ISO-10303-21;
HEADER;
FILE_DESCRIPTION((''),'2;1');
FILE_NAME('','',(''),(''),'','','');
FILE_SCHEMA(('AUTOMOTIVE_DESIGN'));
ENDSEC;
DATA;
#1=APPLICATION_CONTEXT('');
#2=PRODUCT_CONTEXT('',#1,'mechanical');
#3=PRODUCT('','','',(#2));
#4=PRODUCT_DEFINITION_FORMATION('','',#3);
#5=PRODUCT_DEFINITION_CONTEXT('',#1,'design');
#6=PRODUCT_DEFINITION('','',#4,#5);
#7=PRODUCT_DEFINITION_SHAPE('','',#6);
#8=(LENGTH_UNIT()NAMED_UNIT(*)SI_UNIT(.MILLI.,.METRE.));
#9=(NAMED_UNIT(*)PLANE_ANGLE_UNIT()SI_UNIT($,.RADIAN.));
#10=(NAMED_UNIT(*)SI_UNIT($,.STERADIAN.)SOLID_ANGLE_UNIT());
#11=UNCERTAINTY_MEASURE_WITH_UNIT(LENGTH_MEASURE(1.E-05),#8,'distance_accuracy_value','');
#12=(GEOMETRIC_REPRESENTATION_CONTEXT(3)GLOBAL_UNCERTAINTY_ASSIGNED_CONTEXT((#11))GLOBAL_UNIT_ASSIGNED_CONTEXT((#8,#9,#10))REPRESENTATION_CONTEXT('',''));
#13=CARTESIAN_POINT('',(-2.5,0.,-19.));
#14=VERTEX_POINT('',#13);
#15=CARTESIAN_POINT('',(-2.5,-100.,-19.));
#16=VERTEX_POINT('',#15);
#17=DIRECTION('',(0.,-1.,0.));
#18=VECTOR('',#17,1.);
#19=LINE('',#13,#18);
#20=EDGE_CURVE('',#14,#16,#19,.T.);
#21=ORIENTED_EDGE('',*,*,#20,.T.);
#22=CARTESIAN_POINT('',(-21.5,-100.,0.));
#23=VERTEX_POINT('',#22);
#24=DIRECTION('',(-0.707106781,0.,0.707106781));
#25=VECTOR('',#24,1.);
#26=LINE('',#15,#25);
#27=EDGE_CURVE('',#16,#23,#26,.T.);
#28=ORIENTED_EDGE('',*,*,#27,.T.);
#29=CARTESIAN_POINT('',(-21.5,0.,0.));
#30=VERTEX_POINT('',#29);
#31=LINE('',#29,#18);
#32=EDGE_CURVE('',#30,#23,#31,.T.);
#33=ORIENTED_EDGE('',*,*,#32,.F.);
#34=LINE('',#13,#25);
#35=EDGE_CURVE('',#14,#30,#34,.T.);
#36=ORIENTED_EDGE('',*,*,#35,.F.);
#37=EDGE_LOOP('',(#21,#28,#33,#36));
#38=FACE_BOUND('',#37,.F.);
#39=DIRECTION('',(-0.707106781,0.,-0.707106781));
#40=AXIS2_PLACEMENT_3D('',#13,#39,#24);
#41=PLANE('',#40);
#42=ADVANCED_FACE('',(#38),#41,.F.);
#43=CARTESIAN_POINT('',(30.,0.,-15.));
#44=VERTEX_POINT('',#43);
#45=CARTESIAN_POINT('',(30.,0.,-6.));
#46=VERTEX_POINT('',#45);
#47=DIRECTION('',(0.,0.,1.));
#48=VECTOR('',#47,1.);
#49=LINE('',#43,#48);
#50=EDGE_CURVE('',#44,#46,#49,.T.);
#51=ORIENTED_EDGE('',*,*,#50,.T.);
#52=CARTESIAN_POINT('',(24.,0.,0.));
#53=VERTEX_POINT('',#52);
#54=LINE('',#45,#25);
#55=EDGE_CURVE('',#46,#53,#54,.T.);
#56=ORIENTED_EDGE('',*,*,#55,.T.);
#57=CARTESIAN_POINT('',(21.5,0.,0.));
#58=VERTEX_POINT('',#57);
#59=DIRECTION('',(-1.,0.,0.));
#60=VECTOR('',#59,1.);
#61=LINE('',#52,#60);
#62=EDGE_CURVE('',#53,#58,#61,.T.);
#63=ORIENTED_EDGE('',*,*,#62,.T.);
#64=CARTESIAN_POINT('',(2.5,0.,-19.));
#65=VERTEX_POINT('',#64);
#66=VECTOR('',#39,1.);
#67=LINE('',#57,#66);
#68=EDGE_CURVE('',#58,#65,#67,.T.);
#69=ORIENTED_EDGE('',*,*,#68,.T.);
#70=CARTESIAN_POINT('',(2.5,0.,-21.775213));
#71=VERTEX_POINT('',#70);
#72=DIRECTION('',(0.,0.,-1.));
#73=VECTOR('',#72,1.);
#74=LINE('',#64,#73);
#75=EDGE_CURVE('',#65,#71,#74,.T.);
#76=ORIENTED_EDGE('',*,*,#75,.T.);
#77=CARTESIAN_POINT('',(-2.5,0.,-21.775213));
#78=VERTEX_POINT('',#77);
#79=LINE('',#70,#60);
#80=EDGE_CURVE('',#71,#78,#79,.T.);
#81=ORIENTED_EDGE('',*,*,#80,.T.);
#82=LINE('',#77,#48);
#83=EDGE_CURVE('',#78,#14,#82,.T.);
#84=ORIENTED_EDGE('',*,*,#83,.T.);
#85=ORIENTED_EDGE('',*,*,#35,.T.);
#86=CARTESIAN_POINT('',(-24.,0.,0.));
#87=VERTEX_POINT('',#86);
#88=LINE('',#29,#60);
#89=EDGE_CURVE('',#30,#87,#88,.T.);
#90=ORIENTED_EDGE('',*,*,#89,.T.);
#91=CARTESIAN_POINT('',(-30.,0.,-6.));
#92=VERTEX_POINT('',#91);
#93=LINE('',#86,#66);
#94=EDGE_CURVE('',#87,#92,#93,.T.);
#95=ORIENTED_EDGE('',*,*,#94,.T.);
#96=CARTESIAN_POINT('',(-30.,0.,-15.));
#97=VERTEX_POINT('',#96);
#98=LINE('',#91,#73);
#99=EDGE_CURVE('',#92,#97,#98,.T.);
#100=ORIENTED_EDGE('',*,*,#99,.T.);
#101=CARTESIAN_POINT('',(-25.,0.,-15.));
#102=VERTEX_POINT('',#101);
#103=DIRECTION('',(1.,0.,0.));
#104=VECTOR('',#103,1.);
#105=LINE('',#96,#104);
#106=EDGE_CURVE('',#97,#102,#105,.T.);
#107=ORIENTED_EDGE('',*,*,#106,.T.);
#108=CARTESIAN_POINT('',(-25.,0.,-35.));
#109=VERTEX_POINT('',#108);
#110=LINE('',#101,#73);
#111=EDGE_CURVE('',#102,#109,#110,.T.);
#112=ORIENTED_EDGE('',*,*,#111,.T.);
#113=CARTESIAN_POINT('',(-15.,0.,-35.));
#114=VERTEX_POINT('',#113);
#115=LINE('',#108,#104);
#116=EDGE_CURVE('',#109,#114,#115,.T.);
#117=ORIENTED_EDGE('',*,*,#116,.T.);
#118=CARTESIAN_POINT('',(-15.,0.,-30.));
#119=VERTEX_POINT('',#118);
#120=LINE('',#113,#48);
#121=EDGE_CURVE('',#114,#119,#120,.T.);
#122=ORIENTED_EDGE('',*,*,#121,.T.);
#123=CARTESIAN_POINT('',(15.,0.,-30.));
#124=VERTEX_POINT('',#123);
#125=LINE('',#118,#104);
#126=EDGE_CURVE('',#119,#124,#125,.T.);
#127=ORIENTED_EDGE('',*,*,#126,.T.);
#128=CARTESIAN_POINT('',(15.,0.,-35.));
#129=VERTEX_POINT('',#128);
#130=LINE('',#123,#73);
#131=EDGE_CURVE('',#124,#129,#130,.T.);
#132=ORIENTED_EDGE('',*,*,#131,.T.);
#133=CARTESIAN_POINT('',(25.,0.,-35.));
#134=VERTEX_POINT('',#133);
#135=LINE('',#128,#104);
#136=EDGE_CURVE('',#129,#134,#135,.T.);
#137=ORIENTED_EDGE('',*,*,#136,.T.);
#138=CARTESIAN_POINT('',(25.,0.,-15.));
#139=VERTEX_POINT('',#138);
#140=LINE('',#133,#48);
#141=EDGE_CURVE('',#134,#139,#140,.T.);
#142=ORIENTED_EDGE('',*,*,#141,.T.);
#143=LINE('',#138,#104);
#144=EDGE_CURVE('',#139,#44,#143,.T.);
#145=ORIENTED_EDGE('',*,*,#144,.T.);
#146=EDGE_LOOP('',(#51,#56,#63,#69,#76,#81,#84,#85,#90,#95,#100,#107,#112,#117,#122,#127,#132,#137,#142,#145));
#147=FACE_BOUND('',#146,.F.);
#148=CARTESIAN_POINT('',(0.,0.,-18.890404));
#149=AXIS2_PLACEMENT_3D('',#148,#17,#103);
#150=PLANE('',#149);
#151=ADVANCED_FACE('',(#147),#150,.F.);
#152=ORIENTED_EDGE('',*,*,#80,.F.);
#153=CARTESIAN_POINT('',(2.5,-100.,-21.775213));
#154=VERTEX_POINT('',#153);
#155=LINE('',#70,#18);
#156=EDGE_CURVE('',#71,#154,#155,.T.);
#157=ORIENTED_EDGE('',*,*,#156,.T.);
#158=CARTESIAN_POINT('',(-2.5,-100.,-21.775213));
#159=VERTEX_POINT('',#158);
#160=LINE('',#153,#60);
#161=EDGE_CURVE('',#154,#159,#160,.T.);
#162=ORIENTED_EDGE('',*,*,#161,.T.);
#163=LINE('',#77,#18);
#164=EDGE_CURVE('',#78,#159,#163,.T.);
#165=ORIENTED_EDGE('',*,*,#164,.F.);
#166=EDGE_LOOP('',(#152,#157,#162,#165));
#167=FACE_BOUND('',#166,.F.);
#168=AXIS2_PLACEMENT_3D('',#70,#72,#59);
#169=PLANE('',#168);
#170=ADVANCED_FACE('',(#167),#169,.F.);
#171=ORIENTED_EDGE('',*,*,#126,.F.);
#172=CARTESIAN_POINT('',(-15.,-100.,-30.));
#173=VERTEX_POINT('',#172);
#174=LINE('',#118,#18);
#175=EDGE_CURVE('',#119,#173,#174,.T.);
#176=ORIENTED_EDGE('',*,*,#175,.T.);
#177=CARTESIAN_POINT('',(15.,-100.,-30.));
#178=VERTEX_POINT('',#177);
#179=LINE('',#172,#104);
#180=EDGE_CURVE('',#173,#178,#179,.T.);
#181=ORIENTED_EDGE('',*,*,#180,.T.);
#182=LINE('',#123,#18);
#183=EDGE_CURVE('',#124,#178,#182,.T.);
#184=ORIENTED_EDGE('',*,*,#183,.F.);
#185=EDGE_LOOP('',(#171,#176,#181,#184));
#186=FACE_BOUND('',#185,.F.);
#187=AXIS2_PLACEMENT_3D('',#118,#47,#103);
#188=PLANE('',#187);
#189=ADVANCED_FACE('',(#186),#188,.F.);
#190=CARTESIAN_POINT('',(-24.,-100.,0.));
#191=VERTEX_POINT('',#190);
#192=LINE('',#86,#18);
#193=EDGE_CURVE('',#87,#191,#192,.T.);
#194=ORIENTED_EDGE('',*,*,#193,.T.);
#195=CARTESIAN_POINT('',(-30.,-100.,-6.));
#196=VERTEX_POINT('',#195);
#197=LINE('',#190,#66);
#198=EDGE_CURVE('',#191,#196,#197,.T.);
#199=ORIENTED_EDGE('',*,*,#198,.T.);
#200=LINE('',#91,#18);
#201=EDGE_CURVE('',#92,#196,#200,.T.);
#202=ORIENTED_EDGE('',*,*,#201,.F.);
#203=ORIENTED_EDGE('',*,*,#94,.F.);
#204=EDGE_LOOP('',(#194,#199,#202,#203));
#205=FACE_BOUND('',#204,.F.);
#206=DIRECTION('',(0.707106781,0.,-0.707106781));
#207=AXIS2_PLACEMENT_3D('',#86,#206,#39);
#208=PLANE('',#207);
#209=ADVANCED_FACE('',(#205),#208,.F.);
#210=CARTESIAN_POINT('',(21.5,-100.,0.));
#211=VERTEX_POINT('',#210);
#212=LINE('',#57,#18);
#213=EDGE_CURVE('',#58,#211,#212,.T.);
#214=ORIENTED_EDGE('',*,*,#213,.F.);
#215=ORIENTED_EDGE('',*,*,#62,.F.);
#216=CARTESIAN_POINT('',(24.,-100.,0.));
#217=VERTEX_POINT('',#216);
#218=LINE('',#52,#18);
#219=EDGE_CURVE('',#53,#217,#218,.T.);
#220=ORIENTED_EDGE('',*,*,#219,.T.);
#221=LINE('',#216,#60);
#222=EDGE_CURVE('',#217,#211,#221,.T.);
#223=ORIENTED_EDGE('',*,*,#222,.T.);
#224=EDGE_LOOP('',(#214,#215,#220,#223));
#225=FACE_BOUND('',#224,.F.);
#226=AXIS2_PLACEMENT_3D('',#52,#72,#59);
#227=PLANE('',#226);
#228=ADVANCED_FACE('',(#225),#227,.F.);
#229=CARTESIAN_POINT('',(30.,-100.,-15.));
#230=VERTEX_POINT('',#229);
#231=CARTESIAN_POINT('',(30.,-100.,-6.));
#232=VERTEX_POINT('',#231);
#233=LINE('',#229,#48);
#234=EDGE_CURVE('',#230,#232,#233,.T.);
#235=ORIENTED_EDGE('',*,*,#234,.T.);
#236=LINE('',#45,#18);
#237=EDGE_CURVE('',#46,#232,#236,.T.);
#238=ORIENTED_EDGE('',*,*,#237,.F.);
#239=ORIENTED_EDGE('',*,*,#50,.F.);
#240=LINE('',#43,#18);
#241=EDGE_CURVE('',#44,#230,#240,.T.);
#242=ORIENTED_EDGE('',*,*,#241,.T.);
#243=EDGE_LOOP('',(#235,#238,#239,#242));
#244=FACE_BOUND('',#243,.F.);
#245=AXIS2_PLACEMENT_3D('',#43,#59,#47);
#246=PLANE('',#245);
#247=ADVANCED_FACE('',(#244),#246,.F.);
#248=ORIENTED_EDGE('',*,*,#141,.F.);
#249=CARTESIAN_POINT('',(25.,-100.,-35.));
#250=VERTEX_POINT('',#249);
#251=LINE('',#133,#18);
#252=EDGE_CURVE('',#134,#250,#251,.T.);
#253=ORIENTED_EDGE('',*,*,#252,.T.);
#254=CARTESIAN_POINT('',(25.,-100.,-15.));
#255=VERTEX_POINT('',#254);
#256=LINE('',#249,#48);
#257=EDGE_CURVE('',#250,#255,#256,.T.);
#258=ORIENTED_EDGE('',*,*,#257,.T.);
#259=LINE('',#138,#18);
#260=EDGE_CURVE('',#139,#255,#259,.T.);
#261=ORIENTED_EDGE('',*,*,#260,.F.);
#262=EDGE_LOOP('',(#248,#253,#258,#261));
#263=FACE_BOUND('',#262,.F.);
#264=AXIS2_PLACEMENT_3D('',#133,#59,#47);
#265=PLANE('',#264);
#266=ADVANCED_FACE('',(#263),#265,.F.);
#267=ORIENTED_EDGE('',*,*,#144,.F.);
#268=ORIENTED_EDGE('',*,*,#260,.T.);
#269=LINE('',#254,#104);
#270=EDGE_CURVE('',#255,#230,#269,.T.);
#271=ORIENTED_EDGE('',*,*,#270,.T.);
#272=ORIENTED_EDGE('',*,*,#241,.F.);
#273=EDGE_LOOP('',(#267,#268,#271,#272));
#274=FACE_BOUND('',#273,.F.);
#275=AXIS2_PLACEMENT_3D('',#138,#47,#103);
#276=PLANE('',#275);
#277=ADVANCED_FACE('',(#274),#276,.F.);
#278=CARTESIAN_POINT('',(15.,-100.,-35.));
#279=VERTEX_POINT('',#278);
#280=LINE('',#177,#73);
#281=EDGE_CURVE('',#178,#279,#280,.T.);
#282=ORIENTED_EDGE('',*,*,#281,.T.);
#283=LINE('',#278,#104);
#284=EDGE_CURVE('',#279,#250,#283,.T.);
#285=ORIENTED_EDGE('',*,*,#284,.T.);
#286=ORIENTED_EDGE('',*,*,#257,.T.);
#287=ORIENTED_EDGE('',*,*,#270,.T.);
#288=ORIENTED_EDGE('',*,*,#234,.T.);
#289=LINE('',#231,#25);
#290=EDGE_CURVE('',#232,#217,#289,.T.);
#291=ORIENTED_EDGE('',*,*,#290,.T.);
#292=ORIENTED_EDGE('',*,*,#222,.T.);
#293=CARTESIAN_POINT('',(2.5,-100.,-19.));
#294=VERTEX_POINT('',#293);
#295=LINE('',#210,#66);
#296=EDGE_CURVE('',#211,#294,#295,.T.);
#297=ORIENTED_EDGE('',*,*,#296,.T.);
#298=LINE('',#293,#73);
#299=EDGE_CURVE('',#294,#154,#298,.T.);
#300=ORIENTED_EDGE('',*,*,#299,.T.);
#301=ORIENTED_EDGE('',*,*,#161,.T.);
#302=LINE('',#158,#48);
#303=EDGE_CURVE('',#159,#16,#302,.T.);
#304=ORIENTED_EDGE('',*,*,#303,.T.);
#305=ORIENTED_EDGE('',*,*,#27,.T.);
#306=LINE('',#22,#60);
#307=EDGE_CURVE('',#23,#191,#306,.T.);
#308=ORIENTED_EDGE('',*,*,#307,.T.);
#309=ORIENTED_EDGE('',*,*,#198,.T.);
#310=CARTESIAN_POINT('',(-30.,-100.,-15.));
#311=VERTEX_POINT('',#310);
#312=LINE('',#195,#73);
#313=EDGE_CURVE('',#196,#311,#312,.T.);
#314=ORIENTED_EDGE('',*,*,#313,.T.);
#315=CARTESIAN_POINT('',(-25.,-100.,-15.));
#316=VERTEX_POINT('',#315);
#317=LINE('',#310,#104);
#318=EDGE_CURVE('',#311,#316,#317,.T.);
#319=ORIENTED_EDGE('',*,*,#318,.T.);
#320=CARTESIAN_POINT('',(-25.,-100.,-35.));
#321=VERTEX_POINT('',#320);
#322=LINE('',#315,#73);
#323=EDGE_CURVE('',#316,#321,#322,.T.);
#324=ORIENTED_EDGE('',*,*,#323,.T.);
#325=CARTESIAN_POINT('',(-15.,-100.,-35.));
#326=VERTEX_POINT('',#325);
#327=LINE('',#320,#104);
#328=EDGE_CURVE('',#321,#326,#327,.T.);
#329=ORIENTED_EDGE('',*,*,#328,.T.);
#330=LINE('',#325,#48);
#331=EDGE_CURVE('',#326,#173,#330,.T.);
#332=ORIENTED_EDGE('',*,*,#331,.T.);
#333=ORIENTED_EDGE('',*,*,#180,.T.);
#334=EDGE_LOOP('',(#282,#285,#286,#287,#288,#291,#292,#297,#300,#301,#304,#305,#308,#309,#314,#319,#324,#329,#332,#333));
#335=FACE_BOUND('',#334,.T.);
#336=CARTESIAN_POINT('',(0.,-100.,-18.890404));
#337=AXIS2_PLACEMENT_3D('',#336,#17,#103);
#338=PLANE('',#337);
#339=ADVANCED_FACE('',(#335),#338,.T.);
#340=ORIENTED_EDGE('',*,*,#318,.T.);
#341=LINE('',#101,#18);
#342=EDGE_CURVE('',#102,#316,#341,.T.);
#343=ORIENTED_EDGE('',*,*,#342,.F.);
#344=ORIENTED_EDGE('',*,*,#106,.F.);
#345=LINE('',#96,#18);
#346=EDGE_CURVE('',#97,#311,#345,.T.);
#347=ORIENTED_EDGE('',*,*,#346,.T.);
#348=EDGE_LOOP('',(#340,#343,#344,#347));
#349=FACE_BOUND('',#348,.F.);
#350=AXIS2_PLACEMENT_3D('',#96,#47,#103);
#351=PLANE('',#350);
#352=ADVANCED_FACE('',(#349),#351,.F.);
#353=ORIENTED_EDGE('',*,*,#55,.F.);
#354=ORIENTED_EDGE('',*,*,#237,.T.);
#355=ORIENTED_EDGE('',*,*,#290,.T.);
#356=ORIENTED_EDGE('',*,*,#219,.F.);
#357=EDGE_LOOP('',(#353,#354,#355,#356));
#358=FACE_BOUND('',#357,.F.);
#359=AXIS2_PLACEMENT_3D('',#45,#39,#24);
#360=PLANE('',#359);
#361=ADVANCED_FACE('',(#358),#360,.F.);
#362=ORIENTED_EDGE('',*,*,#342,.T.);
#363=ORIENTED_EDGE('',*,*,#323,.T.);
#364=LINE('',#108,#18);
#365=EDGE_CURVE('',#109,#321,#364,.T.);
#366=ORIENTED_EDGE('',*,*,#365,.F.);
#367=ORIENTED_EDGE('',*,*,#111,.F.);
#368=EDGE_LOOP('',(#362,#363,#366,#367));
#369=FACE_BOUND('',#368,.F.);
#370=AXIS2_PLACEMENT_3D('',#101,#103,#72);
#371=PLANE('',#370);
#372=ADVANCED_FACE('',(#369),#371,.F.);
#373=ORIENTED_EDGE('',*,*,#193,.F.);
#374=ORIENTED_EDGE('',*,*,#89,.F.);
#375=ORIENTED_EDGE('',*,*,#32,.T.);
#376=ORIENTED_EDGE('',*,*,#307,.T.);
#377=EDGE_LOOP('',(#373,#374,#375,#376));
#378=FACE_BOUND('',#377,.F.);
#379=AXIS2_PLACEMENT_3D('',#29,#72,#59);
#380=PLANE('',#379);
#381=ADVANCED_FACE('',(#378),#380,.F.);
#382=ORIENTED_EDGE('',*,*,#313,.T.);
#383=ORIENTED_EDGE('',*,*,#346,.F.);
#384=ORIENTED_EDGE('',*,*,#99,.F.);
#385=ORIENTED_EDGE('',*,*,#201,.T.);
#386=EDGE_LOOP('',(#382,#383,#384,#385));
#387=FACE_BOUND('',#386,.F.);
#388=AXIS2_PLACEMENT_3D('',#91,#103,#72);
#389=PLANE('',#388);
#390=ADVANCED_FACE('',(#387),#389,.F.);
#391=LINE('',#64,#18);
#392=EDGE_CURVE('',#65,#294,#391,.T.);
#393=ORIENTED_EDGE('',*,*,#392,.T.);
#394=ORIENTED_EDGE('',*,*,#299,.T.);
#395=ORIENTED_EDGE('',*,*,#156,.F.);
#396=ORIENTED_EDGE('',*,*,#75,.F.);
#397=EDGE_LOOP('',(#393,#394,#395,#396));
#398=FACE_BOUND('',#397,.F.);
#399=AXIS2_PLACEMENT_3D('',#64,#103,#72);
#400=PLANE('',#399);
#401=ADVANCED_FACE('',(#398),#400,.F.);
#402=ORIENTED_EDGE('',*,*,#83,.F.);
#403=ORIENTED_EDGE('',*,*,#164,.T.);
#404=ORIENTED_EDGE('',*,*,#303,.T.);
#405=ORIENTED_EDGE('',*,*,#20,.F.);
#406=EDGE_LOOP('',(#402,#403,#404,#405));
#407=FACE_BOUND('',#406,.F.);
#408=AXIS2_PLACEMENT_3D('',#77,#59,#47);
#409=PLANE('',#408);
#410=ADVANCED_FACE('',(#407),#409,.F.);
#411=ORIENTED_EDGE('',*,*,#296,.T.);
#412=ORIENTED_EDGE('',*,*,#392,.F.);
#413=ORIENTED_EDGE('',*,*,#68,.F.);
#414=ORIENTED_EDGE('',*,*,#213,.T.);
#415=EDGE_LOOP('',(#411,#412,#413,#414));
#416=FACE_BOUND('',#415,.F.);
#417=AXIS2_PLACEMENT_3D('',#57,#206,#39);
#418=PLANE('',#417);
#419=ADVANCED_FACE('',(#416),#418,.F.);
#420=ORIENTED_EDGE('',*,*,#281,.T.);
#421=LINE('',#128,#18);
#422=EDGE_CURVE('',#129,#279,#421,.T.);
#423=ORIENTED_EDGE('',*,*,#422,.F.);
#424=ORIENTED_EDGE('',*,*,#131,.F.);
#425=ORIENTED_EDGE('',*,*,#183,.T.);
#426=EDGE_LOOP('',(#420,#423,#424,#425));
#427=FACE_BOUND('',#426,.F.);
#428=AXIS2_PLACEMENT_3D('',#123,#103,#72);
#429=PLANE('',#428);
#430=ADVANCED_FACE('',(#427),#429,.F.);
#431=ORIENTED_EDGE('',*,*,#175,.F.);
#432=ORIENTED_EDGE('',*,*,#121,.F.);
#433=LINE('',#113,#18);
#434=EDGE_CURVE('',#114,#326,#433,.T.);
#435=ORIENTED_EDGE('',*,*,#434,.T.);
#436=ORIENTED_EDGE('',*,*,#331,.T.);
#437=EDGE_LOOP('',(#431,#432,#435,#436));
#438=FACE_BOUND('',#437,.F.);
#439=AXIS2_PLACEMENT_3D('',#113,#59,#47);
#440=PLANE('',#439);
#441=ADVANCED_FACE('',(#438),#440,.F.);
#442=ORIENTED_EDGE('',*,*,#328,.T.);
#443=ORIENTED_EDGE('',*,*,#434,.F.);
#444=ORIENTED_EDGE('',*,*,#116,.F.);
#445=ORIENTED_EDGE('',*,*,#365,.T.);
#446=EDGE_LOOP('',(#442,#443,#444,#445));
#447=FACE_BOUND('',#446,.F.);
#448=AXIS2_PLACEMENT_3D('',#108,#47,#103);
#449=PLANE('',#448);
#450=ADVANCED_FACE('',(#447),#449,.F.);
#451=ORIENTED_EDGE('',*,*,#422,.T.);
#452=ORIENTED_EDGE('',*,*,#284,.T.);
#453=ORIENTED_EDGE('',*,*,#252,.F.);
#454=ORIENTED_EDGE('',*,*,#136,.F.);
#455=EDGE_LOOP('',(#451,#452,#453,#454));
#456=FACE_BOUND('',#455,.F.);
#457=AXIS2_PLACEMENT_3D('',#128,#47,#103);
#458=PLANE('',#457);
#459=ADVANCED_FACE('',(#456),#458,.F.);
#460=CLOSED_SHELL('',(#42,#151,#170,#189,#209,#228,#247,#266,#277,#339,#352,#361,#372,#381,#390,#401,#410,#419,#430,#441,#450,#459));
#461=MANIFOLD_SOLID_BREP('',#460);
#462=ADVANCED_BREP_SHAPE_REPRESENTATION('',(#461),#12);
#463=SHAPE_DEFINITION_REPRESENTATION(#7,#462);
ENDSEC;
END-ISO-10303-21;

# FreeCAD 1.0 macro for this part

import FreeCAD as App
import Part
import Sketcher

V = App.Vector
Q = App.Units.Quantity

doc = App.newDocument("Part")
body = doc.addObject("PartDesign::Body", "Body")

sketch1 = body.newObject("Sketcher::SketchObject", "Sketch")
sketch1.AttachmentSupport = (doc.getObject("XZ_Plane"), [""])
sketch1.MapMode = "FlatFace"
sketch1.addGeometry([
    Part.LineSegment(V(-15, -30, 0), V(15, -30, 0)),
    Part.LineSegment(V(15, -30, 0), V(15, -35, 0)),
    Part.LineSegment(V(15, -35, 0), V(25, -35, 0)),
    Part.LineSegment(V(25, -35, 0), V(25, -15, 0)),
    Part.LineSegment(V(25, -15, 0), V(30, -15, 0)),
    Part.LineSegment(V(30, -15, 0), V(30, -6, 0)),
    Part.LineSegment(V(30, -6, 0), V(24, 0, 0)),
    Part.LineSegment(V(24, 0, 0), V(21.5, 0, 0)),
    Part.LineSegment(V(21.5, 0, 0), V(2.5, -19, 0)),
    Part.LineSegment(V(2.5, -19, 0), V(2.5, -21.8, 0)),
    Part.LineSegment(V(2.5, -21.8, 0), V(-2.5, -21.8, 0)),
    Part.LineSegment(V(-2.5, -21.8, 0), V(-2.5, -19, 0)),
    Part.LineSegment(V(-2.5, -19, 0), V(-21.5, 0, 0)),
    Part.LineSegment(V(-21.5, 0, 0), V(-24, 0, 0)),
    Part.LineSegment(V(-24, 0, 0), V(-30, -6, 0)),
    Part.LineSegment(V(-30, -6, 0), V(-30, -15, 0)),
    Part.LineSegment(V(-30, -15, 0), V(-25, -15, 0)),
    Part.LineSegment(V(-25, -15, 0), V(-25, -35, 0)),
    Part.LineSegment(V(-25, -35, 0), V(-15, -35, 0)),
    Part.LineSegment(V(-15, -35, 0), V(-15, -30, 0)),
], False)
sketch1.addConstraint([
    Sketcher.Constraint("Coincident", 0, 2, 1, 1),
    Sketcher.Constraint("Coincident", 1, 2, 2, 1),
    Sketcher.Constraint("Coincident", 2, 2, 3, 1),
    Sketcher.Constraint("Coincident", 3, 2, 4, 1),
    Sketcher.Constraint("Coincident", 4, 2, 5, 1),
    Sketcher.Constraint("Coincident", 5, 2, 6, 1),
    Sketcher.Constraint("Coincident", 6, 2, 7, 1),
    Sketcher.Constraint("Coincident", 7, 2, 8, 1),
    Sketcher.Constraint("Coincident", 8, 2, 9, 1),
    Sketcher.Constraint("Coincident", 9, 2, 10, 1),
    Sketcher.Constraint("Coincident", 10, 2, 11, 1),
    Sketcher.Constraint("Coincident", 11, 2, 12, 1),
    Sketcher.Constraint("Coincident", 12, 2, 13, 1),
    Sketcher.Constraint("Coincident", 13, 2, 14, 1),
    Sketcher.Constraint("Coincident", 14, 2, 15, 1),
    Sketcher.Constraint("Coincident", 15, 2, 16, 1),
    Sketcher.Constraint("Coincident", 16, 2, 17, 1),
    Sketcher.Constraint("Coincident", 17, 2, 18, 1),
    Sketcher.Constraint("Coincident", 18, 2, 19, 1),
    Sketcher.Constraint("Coincident", 19, 2, 0, 1),
    Sketcher.Constraint("Horizontal", 0),
    Sketcher.Constraint("Vertical", 1),
    Sketcher.Constraint("Horizontal", 2),
    Sketcher.Constraint("Vertical", 3),
    Sketcher.Constraint("Horizontal", 4),
    Sketcher.Constraint("Vertical", 5),
    Sketcher.Constraint("Horizontal", 7),
    Sketcher.Constraint("Vertical", 9),
    Sketcher.Constraint("Horizontal", 10),
    Sketcher.Constraint("Vertical", 11),
    Sketcher.Constraint("Horizontal", 13),
    Sketcher.Constraint("Vertical", 15),
    Sketcher.Constraint("Horizontal", 16),
    Sketcher.Constraint("Vertical", 17),
    Sketcher.Constraint("Horizontal", 18),
    Sketcher.Constraint("Vertical", 19),
    Sketcher.Constraint("Symmetric", 7, 2, 12, 2, -1, 1),
    Sketcher.Constraint("Symmetric", 8, 2, 11, 2, -2),
    Sketcher.Constraint("Symmetric", 6, 2, 13, 2, -2),
    Sketcher.Constraint("Symmetric", 5, 2, 14, 2, -2),
    Sketcher.Constraint("Symmetric", 3, 2, 16, 2, -2),
    Sketcher.Constraint("Symmetric", 1, 2, 18, 2, -2),
    Sketcher.Constraint("Perpendicular", 6, 8),
    Sketcher.Constraint("Perpendicular", 8, 12),
    Sketcher.Constraint("Equal", 4, 10),
    Sketcher.Constraint("Equal", 16, 1),
    Sketcher.Constraint("DistanceX", 0, 1, 0, 2, Q("30 mm")),
    Sketcher.Constraint("DistanceX", 2, 1, 2, 2, Q("10 mm")),
    Sketcher.Constraint("DistanceX", 4, 1, 4, 2, Q("5 mm")),
    Sketcher.Constraint("DistanceY", 3, 1, 3, 2, Q("20 mm")),
    Sketcher.Constraint("DistanceY", 5, 1, 5, 2, Q("9 mm")),
    Sketcher.Constraint("DistanceX", 7, 2, 7, 1, Q("2.5 mm")),
    Sketcher.Constraint("DistanceY", 0, 2, -1, 1, Q("30 mm")),
    Sketcher.Constraint("DistanceY", 9, 2, 9, 1, Q("2.775213 mm")),
])
pad1 = body.newObject("PartDesign::Pad", "Pad")
pad1.Profile = sketch1
pad1.Length = 100

doc.recompute()
